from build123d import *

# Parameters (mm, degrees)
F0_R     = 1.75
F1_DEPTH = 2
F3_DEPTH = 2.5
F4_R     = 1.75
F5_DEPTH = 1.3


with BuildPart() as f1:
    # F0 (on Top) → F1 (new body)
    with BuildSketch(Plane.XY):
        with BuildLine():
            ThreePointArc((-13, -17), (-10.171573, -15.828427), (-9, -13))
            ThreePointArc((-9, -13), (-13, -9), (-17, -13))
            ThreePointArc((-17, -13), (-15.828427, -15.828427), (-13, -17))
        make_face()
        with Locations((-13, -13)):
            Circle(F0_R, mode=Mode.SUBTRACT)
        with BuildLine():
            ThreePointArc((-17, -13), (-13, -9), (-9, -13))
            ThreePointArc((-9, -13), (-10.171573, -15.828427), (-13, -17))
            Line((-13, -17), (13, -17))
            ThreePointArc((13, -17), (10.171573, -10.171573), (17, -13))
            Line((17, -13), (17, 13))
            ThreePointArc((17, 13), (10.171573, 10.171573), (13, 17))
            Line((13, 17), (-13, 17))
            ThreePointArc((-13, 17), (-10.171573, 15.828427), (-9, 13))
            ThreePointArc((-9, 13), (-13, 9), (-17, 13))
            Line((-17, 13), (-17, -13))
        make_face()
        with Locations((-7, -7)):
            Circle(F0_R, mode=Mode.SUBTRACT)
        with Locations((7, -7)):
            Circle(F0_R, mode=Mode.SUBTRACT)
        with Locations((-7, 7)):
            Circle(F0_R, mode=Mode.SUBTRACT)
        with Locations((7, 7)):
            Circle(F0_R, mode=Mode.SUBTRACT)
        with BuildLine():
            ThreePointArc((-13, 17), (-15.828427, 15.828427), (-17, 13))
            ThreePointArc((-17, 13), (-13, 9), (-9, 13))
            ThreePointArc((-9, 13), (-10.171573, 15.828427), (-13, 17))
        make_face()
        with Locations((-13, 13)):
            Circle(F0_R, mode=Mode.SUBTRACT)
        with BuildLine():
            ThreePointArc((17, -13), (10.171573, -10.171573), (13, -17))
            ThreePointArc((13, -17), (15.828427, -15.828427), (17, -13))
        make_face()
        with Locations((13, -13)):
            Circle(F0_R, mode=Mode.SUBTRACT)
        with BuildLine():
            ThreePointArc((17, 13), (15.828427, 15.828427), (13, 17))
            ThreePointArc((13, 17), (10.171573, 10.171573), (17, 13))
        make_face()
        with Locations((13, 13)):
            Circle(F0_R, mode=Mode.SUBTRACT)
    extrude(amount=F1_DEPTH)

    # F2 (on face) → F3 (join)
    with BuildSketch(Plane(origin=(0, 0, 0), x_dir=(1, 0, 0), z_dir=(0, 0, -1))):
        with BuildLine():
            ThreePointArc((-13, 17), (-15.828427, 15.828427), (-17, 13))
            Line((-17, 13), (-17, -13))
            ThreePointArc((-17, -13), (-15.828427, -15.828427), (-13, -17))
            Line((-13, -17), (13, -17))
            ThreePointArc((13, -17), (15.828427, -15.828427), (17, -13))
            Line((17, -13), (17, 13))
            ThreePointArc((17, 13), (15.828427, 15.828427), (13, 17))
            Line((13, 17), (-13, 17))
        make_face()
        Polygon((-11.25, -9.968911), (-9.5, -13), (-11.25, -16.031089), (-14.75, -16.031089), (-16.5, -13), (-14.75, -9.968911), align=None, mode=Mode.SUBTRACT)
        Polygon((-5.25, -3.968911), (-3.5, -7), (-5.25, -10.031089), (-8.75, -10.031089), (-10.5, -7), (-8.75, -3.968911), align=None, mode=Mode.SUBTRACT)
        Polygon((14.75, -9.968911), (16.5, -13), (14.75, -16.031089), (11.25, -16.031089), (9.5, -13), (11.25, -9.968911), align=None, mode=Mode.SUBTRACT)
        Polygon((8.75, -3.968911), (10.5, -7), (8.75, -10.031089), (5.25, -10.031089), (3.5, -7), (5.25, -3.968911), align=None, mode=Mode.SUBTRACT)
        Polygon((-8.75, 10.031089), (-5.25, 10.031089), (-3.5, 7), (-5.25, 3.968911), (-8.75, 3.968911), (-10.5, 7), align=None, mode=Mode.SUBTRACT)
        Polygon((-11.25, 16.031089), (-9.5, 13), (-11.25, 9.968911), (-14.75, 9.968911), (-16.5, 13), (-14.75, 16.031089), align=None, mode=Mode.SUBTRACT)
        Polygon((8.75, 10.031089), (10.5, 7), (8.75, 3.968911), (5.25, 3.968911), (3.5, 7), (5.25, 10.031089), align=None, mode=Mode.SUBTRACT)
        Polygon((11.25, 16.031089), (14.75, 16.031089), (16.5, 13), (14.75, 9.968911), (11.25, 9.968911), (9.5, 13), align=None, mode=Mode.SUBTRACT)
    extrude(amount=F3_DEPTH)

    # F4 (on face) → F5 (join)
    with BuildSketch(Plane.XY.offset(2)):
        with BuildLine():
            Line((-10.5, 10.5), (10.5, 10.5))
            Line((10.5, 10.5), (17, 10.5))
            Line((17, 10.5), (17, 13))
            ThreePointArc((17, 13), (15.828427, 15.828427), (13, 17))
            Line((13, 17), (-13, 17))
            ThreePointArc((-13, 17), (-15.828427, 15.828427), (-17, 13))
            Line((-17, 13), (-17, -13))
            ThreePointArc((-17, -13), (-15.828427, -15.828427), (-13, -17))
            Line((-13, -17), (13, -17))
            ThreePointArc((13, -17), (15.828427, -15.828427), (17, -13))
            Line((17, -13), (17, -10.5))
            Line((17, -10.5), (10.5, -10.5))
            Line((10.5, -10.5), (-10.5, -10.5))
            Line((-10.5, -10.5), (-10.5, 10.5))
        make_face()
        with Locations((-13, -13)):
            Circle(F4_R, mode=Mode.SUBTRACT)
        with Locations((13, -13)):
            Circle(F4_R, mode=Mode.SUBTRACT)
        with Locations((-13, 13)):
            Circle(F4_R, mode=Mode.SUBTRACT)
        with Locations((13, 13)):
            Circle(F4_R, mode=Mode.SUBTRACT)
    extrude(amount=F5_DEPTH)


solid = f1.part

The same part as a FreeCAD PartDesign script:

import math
import FreeCAD as App
import Part
import Sketcher
Q = App.Units.Quantity


def add_polygon(sketch, points):
    """Adds a closed chain of lines whose ends are joined by coincident constraints."""
    first, n = sketch.GeometryCount, len(points)
    for a, b in zip(points, points[1:] + points[:1]):
        sketch.addGeometry(Part.LineSegment(App.Vector(*a, 0), App.Vector(*b, 0)), False)
    for i in range(n):
        sketch.addConstraint(Sketcher.Constraint("Coincident", first + i, 2, first + (i + 1) % n, 1))

doc = App.newDocument("Part")
body = doc.addObject("PartDesign::Body", "Body")

sketch1 = body.newObject("Sketcher::SketchObject", "Sketch")
sketch1.AttachmentSupport = (doc.getObject("XY_Plane"), [""])
sketch1.MapMode = "FlatFace"
sketch1.addGeometry([
    Part.ArcOfCircle(Part.Circle(App.Vector(-13, -13, 0), App.Vector(0, 0, 1), 4), math.radians(-180), math.radians(-90)),
    Part.LineSegment(App.Vector(-13, -17, 0), App.Vector(13, -17, 0)),
    Part.ArcOfCircle(Part.Circle(App.Vector(13, -13, 0), App.Vector(0, 0, 1), 4), math.radians(-90), math.radians(0)),
    Part.LineSegment(App.Vector(17, -13, 0), App.Vector(17, 13, 0)),
    Part.ArcOfCircle(Part.Circle(App.Vector(13, 13, 0), App.Vector(0, 0, 1), 4), math.radians(0), math.radians(90)),
    Part.LineSegment(App.Vector(13, 17, 0), App.Vector(-13, 17, 0)),
    Part.ArcOfCircle(Part.Circle(App.Vector(-13, 13, 0), App.Vector(0, 0, 1), 4), math.radians(90), math.radians(180)),
    Part.LineSegment(App.Vector(-17, 13, 0), App.Vector(-17, -13, 0)),
    Part.Circle(App.Vector(-13, -13, 0), App.Vector(0, 0, 1), 1.8),
    Part.Circle(App.Vector(-7, -7, 0), App.Vector(0, 0, 1), 1.8),
    Part.Circle(App.Vector(13, -13, 0), App.Vector(0, 0, 1), 1.8),
    Part.Circle(App.Vector(7, -7, 0), App.Vector(0, 0, 1), 1.8),
    Part.Circle(App.Vector(-7, 7, 0), App.Vector(0, 0, 1), 1.8),
    Part.Circle(App.Vector(-13, 13, 0), App.Vector(0, 0, 1), 1.8),
    Part.Circle(App.Vector(7, 7, 0), App.Vector(0, 0, 1), 1.8),
    Part.Circle(App.Vector(13, 13, 0), App.Vector(0, 0, 1), 1.8),
], False)
sketch1.addConstraint([
    Sketcher.Constraint("Tangent", 0, 2, 1, 1),
    Sketcher.Constraint("Tangent", 1, 2, 2, 1),
    Sketcher.Constraint("Tangent", 2, 2, 3, 1),
    Sketcher.Constraint("Tangent", 3, 2, 4, 1),
    Sketcher.Constraint("Tangent", 4, 2, 5, 1),
    Sketcher.Constraint("Tangent", 5, 2, 6, 1),
    Sketcher.Constraint("Tangent", 6, 2, 7, 1),
    Sketcher.Constraint("Tangent", 7, 2, 0, 1),
    Sketcher.Constraint("Horizontal", 1),
    Sketcher.Constraint("Vertical", 3),
    Sketcher.Constraint("Horizontal", 5),
    Sketcher.Constraint("Vertical", 7),
    Sketcher.Constraint("Coincident", 8, 3, 0, 3),
    Sketcher.Constraint("Coincident", 10, 3, 2, 3),
    Sketcher.Constraint("Coincident", 13, 3, 6, 3),
    Sketcher.Constraint("Coincident", 15, 3, 4, 3),
    Sketcher.Constraint("Equal", 0, 2),
    Sketcher.Constraint("Equal", 2, 4),
    Sketcher.Constraint("Equal", 4, 6),
    Sketcher.Constraint("Equal", 8, 9),
    Sketcher.Constraint("Equal", 9, 10),
    Sketcher.Constraint("Equal", 10, 11),
    Sketcher.Constraint("Equal", 11, 12),
    Sketcher.Constraint("Equal", 12, 13),
    Sketcher.Constraint("Equal", 13, 14),
    Sketcher.Constraint("Equal", 14, 15),
    Sketcher.Constraint("Symmetric", 0, 3, 4, 3, -1, 1),
    Sketcher.Constraint("Symmetric", 11, 3, 12, 3, -1, 1),
    Sketcher.Constraint("Symmetric", 9, 3, 14, 3, -1, 1),
    Sketcher.Constraint("Symmetric", 9, 3, 11, 3, -2),
    Sketcher.Constraint("Equal", 5, 3),
    Sketcher.Constraint("Radius", 0, 4.0),
    Sketcher.Constraint("Diameter", 8, 3.5),
    Sketcher.Constraint("DistanceX", 1, 1, 1, 2, 26.0),
    Sketcher.Constraint("DistanceX", 9, 3, -1, 1, 7.0),
    Sketcher.Constraint("DistanceY", 9, 3, -1, 1, 7.0),
])
pad1 = body.newObject("PartDesign::Pad", "Pad")
pad1.Profile = sketch1
pad1.Length = 2

sketch2 = body.newObject("Sketcher::SketchObject", "Sketch001")
sketch2.AttachmentSupport = (doc.getObject("XY_Plane"), [""])
sketch2.MapMode = "FlatFace"
sketch2.addGeometry(Part.ArcOfCircle(Part.Circle(App.Vector(-13, -13, 0), App.Vector(0, 0, 1), 4), math.radians(-180), math.radians(-90)), False)
sketch2.addGeometry(Part.LineSegment(App.Vector(-17, -13, 0), App.Vector(-17, 13, 0)), False)
sketch2.addGeometry(Part.ArcOfCircle(Part.Circle(App.Vector(-13, 13, 0), App.Vector(0, 0, 1), 4), math.radians(90), math.radians(180)), False)
sketch2.addGeometry(Part.LineSegment(App.Vector(-13, 17, 0), App.Vector(13, 17, 0)), False)
sketch2.addGeometry(Part.ArcOfCircle(Part.Circle(App.Vector(13, 13, 0), App.Vector(0, 0, 1), 4), math.radians(0), math.radians(90)), False)
sketch2.addGeometry(Part.LineSegment(App.Vector(17, 13, 0), App.Vector(17, -13, 0)), False)
sketch2.addGeometry(Part.ArcOfCircle(Part.Circle(App.Vector(13, -13, 0), App.Vector(0, 0, 1), 4), math.radians(-90), math.radians(0)), False)
sketch2.addGeometry(Part.LineSegment(App.Vector(13, -17, 0), App.Vector(-13, -17, 0)), False)
add_polygon(sketch2, [(-14.8, 10), (-11.2, 10), (-9.5, 13), (-11.2, 16), (-14.8, 16), (-16.5, 13)])
add_polygon(sketch2, [(-8.8, 4), (-5.2, 4), (-3.5, 7), (-5.2, 10), (-8.8, 10), (-10.5, 7)])
add_polygon(sketch2, [(11.2, 10), (14.8, 10), (16.5, 13), (14.8, 16), (11.2, 16), (9.5, 13)])
add_polygon(sketch2, [(5.2, 4), (8.8, 4), (10.5, 7), (8.8, 10), (5.2, 10), (3.5, 7)])
add_polygon(sketch2, [(-10.5, -7), (-8.8, -10), (-5.2, -10), (-3.5, -7), (-5.2, -4), (-8.8, -4)])
add_polygon(sketch2, [(-14.8, -16), (-11.2, -16), (-9.5, -13), (-11.2, -10), (-14.8, -10), (-16.5, -13)])
add_polygon(sketch2, [(5.2, -10), (8.8, -10), (10.5, -7), (8.8, -4), (5.2, -4), (3.5, -7)])
add_polygon(sketch2, [(9.5, -13), (11.2, -16), (14.8, -16), (16.5, -13), (14.8, -10), (11.2, -10)])
sketch2.addConstraint([
    Sketcher.Constraint("Tangent", 0, 1, 1, 1),
    Sketcher.Constraint("Tangent", 1, 2, 2, 2),
    Sketcher.Constraint("Tangent", 2, 1, 3, 1),
    Sketcher.Constraint("Tangent", 3, 2, 4, 2),
    Sketcher.Constraint("Tangent", 4, 1, 5, 1),
    Sketcher.Constraint("Tangent", 5, 2, 6, 2),
    Sketcher.Constraint("Tangent", 6, 1, 7, 1),
    Sketcher.Constraint("Tangent", 7, 2, 0, 2),
    Sketcher.Constraint("Vertical", 1),
    Sketcher.Constraint("Horizontal", 3),
    Sketcher.Constraint("Vertical", 5),
    Sketcher.Constraint("Horizontal", 7),
    Sketcher.Constraint("Horizontal", 8),
    Sketcher.Constraint("Horizontal", 11),
    Sketcher.Constraint("Horizontal", 14),
    Sketcher.Constraint("Horizontal", 17),
    Sketcher.Constraint("Horizontal", 20),
    Sketcher.Constraint("Horizontal", 23),
    Sketcher.Constraint("Horizontal", 26),
    Sketcher.Constraint("Horizontal", 29),
    Sketcher.Constraint("Horizontal", 33),
    Sketcher.Constraint("Horizontal", 36),
    Sketcher.Constraint("Horizontal", 38),
    Sketcher.Constraint("Horizontal", 41),
    Sketcher.Constraint("Horizontal", 44),
    Sketcher.Constraint("Horizontal", 47),
    Sketcher.Constraint("Horizontal", 51),
    Sketcher.Constraint("Horizontal", 54),
    Sketcher.Constraint("Equal", 0, 2),
    Sketcher.Constraint("Equal", 2, 4),
    Sketcher.Constraint("Equal", 4, 6),
    Sketcher.Constraint("Symmetric", 0, 3, 4, 3, -1, 1),
    Sketcher.Constraint("Symmetric", 28, 2, 32, 2, -1, 1),
    Sketcher.Constraint("Symmetric", 30, 2, 34, 2, -1, 1),
    Sketcher.Constraint("Symmetric", 31, 2, 35, 2, -1, 1),
    Sketcher.Constraint("Symmetric", 27, 2, 37, 2, -1, 1),
    Sketcher.Constraint("Symmetric", 23, 2, 38, 2, -1, 1),
    Sketcher.Constraint("Symmetric", 24, 2, 39, 2, -1, 1),
    Sketcher.Constraint("Symmetric", 25, 2, 40, 2, -1, 1),
    Sketcher.Constraint("Symmetric", 21, 2, 42, 2, -1, 1),
    Sketcher.Constraint("Symmetric", 17, 2, 44, 2, -1, 1),
    Sketcher.Constraint("Symmetric", 18, 2, 45, 2, -1, 1),
    Sketcher.Constraint("Symmetric", 19, 2, 46, 2, -1, 1),
    Sketcher.Constraint("Symmetric", 15, 2, 48, 2, -1, 1),
    Sketcher.Constraint("Symmetric", 10, 2, 50, 2, -1, 1),
    Sketcher.Constraint("Symmetric", 12, 2, 52, 2, -1, 1),
    Sketcher.Constraint("Symmetric", 13, 2, 53, 2, -1, 1),
    Sketcher.Constraint("Symmetric", 9, 2, 55, 2, -1, 1),
    Sketcher.Constraint("Symmetric", 13, 2, 20, 2, -2),
    Sketcher.Constraint("Symmetric", 12, 2, 21, 2, -2),
    Sketcher.Constraint("Symmetric", 11, 2, 22, 2, -2),
    Sketcher.Constraint("Symmetric", 9, 2, 24, 2, -2),
    Sketcher.Constraint("Symmetric", 19, 2, 26, 2, -2),
    Sketcher.Constraint("Symmetric", 18, 2, 27, 2, -2),
    Sketcher.Constraint("Symmetric", 17, 2, 28, 2, -2),
    Sketcher.Constraint("Symmetric", 15, 2, 30, 2, -2),
    Sketcher.Constraint("Parallel", 9, 12),
    Sketcher.Constraint("Parallel", 10, 13),
    Sketcher.Constraint("Parallel", 12, 15),
    Sketcher.Constraint("Parallel", 13, 16),
    Sketcher.Constraint("Parallel", 15, 18),
    Sketcher.Constraint("Parallel", 16, 19),
    Sketcher.Constraint("Parallel", 18, 21),
    Sketcher.Constraint("Parallel", 21, 24),
    Sketcher.Constraint("Parallel", 22, 25),
    Sketcher.Constraint("Parallel", 27, 30),
    Sketcher.Constraint("Parallel", 28, 31),
    Sketcher.Constraint("Parallel", 30, 34),
    Sketcher.Constraint("Parallel", 34, 37),
    Sketcher.Constraint("Parallel", 39, 42),
    Sketcher.Constraint("Parallel", 40, 43),
    Sketcher.Constraint("Parallel", 45, 48),
    Sketcher.Constraint("Parallel", 46, 49),
    Sketcher.Constraint("Parallel", 48, 52),
    Sketcher.Constraint("Parallel", 52, 55),
    Sketcher.Constraint("Horizontal", 4, 1, 9, 2),
    Sketcher.Constraint("Horizontal", 9, 2, 12, 2),
    Sketcher.Constraint("Horizontal", 15, 2, 18, 2),
    Sketcher.Constraint("Vertical", 8, 2, 10, 2),
    Sketcher.Constraint("Vertical", 14, 2, 16, 2),
    Sketcher.Constraint("Equal", 11, 14),
    Sketcher.Constraint("Equal", 7, 1),
    Sketcher.Constraint("Equal", 13, 15),
    Sketcher.Constraint("Radius", 0, 4.0),
    Sketcher.Constraint("DistanceX", 3, 1, 3, 2, 26.0),
    Sketcher.Constraint("Angle", 9, Q("60.000001 deg")),
    Sketcher.Constraint("DistanceX", 8, 1, 8, 2, 3.5),
    Sketcher.Constraint("DistanceY", -1, 1, 15, 2, 7.0),
    Sketcher.Constraint("DistanceX", 8, 2, 14, 2, 6.0),
    Sketcher.Constraint("DistanceX", 16, 2, 20, 2, 20.0),
    Sketcher.Constraint("DistanceX", 24, 2, 27, 2, 1.0),
])
pad2 = body.newObject("PartDesign::Pad", "Pad001")
pad2.Profile = sketch2
pad2.Length = 2.5
pad2.Reversed = True

sketch3 = body.newObject("Sketcher::SketchObject", "Sketch002")
sketch3.AttachmentSupport = (doc.getObject("XY_Plane"), [""])
sketch3.MapMode = "FlatFace"
sketch3.AttachmentOffset = App.Placement(App.Vector(0, 0, 2), App.Rotation())
sketch3.addGeometry([
    Part.LineSegment(App.Vector(-10.5, 10.5, 0), App.Vector(17, 10.5, 0)),
    Part.LineSegment(App.Vector(17, 10.5, 0), App.Vector(17, 13, 0)),
    Part.ArcOfCircle(Part.Circle(App.Vector(13, 13, 0), App.Vector(0, 0, 1), 4), math.radians(0), math.radians(90)),
    Part.LineSegment(App.Vector(13, 17, 0), App.Vector(-13, 17, 0)),
    Part.ArcOfCircle(Part.Circle(App.Vector(-13, 13, 0), App.Vector(0, 0, 1), 4), math.radians(90), math.radians(180)),
    Part.LineSegment(App.Vector(-17, 13, 0), App.Vector(-17, -13, 0)),
    Part.ArcOfCircle(Part.Circle(App.Vector(-13, -13, 0), App.Vector(0, 0, 1), 4), math.radians(-180), math.radians(-90)),
    Part.LineSegment(App.Vector(-13, -17, 0), App.Vector(13, -17, 0)),
    Part.ArcOfCircle(Part.Circle(App.Vector(13, -13, 0), App.Vector(0, 0, 1), 4), math.radians(-90), math.radians(0)),
    Part.LineSegment(App.Vector(17, -13, 0), App.Vector(17, -10.5, 0)),
    Part.LineSegment(App.Vector(17, -10.5, 0), App.Vector(-10.5, -10.5, 0)),
    Part.LineSegment(App.Vector(-10.5, -10.5, 0), App.Vector(-10.5, 10.5, 0)),
    Part.Circle(App.Vector(-13, -13, 0), App.Vector(0, 0, 1), 1.8),
    Part.Circle(App.Vector(13, -13, 0), App.Vector(0, 0, 1), 1.8),
    Part.Circle(App.Vector(-13, 13, 0), App.Vector(0, 0, 1), 1.8),
    Part.Circle(App.Vector(13, 13, 0), App.Vector(0, 0, 1), 1.8),
], False)
sketch3.addConstraint([
    Sketcher.Constraint("Coincident", 0, 2, 1, 1),
    Sketcher.Constraint("Tangent", 1, 2, 2, 1),
    Sketcher.Constraint("Tangent", 2, 2, 3, 1),
    Sketcher.Constraint("Tangent", 3, 2, 4, 1),
    Sketcher.Constraint("Tangent", 4, 2, 5, 1),
    Sketcher.Constraint("Tangent", 5, 2, 6, 1),
    Sketcher.Constraint("Tangent", 6, 2, 7, 1),
    Sketcher.Constraint("Tangent", 7, 2, 8, 1),
    Sketcher.Constraint("Tangent", 8, 2, 9, 1),
    Sketcher.Constraint("Coincident", 9, 2, 10, 1),
    Sketcher.Constraint("Coincident", 10, 2, 11, 1),
    Sketcher.Constraint("Coincident", 11, 2, 0, 1),
    Sketcher.Constraint("Horizontal", 0),
    Sketcher.Constraint("Vertical", 1),
    Sketcher.Constraint("Horizontal", 3),
    Sketcher.Constraint("Vertical", 5),
    Sketcher.Constraint("Horizontal", 7),
    Sketcher.Constraint("Vertical", 9),
    Sketcher.Constraint("Horizontal", 10),
    Sketcher.Constraint("Vertical", 11),
    Sketcher.Constraint("Coincident", 12, 3, 6, 3),
    Sketcher.Constraint("Coincident", 13, 3, 8, 3),
    Sketcher.Constraint("Coincident", 14, 3, 4, 3),
    Sketcher.Constraint("Coincident", 15, 3, 2, 3),
    Sketcher.Constraint("Equal", 2, 4),
    Sketcher.Constraint("Equal", 4, 6),
    Sketcher.Constraint("Equal", 6, 8),
    Sketcher.Constraint("Equal", 12, 13),
    Sketcher.Constraint("Equal", 13, 14),
    Sketcher.Constraint("Equal", 14, 15),
    Sketcher.Constraint("Symmetric", 2, 3, 6, 3, -1, 1),
    Sketcher.Constraint("Symmetric", 0, 2, 9, 2, -1),
    Sketcher.Constraint("Equal", 7, 5),
    Sketcher.Constraint("Radius", 2, 4.0),
    Sketcher.Constraint("Diameter", 12, 3.5),
    Sketcher.Constraint("DistanceX", 3, 2, 3, 1, 26.0),
    Sketcher.Constraint("DistanceY", 11, 1, 11, 2, 21.0),
    Sketcher.Constraint("DistanceX", 0, 1, 0, 2, 27.5),
])
pad3 = body.newObject("PartDesign::Pad", "Pad002")
pad3.Profile = sketch3
pad3.Length = 1.3

doc.recompute()
